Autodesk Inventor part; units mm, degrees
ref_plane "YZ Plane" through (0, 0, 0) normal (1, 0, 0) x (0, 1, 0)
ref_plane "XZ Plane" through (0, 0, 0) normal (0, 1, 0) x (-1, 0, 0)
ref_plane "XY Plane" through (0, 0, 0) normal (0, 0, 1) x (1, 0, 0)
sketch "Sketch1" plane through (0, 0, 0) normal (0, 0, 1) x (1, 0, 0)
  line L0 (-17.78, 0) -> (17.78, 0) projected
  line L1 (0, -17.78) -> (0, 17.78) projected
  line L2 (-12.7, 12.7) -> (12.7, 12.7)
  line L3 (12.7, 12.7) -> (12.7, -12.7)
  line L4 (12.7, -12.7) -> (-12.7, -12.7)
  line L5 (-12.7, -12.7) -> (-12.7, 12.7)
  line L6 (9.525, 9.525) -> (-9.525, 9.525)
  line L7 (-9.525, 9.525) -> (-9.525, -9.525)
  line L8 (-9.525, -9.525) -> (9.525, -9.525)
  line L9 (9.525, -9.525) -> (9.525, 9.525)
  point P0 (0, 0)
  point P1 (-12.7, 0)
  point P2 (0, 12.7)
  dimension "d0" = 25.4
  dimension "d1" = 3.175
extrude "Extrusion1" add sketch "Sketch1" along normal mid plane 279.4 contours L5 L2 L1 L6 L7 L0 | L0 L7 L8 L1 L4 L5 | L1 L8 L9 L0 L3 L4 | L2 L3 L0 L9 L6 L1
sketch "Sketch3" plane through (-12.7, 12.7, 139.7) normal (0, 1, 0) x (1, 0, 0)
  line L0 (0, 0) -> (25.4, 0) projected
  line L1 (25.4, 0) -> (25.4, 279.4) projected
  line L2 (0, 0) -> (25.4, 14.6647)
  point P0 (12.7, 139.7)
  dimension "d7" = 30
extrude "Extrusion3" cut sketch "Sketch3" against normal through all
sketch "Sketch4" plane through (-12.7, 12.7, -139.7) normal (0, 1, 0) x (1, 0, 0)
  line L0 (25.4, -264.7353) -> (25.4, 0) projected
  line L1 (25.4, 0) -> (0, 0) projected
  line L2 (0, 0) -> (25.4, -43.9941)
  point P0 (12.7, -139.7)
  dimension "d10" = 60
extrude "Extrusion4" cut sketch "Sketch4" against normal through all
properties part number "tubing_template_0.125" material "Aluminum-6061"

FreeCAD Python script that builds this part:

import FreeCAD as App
import Part
import Sketcher
Q = App.Units.Quantity

doc = App.newDocument("Part")
body = doc.addObject("PartDesign::Body", "Body")

sketch1 = doc.addObject("Sketcher::SketchObject", "Sketch")
body.addObject(sketch1)
sketch1.AttachmentSupport = (doc.XY_Plane, [""])
sketch1.MapMode = "FlatFace"
sketch1.addGeometry(Part.LineSegment(App.Vector(-13, 13, 0), App.Vector(-13, -13, 0)), False)
sketch1.addGeometry(Part.LineSegment(App.Vector(-13, -13, 0), App.Vector(13, -13, 0)), False)
sketch1.addGeometry(Part.LineSegment(App.Vector(13, -13, 0), App.Vector(13, 13, 0)), False)
sketch1.addGeometry(Part.LineSegment(App.Vector(13, 13, 0), App.Vector(-13, 13, 0)), False)
sketch1.addGeometry(Part.LineSegment(App.Vector(-10, 10, 0), App.Vector(10, 10, 0)), False)
sketch1.addGeometry(Part.LineSegment(App.Vector(10, 10, 0), App.Vector(10, -10, 0)), False)
sketch1.addGeometry(Part.LineSegment(App.Vector(10, -10, 0), App.Vector(-10, -10, 0)), False)
sketch1.addGeometry(Part.LineSegment(App.Vector(-10, -10, 0), App.Vector(-10, 10, 0)), False)
sketch1.addConstraint(Sketcher.Constraint("Coincident", 0, 2, 1, 1))
sketch1.addConstraint(Sketcher.Constraint("Coincident", 1, 2, 2, 1))
sketch1.addConstraint(Sketcher.Constraint("Coincident", 2, 2, 3, 1))
sketch1.addConstraint(Sketcher.Constraint("Coincident", 3, 2, 0, 1))
sketch1.addConstraint(Sketcher.Constraint("Coincident", 4, 2, 5, 1))
sketch1.addConstraint(Sketcher.Constraint("Coincident", 5, 2, 6, 1))
sketch1.addConstraint(Sketcher.Constraint("Coincident", 6, 2, 7, 1))
sketch1.addConstraint(Sketcher.Constraint("Coincident", 7, 2, 4, 1))
sketch1.addConstraint(Sketcher.Constraint("Vertical", 0))
sketch1.addConstraint(Sketcher.Constraint("Horizontal", 1))
sketch1.addConstraint(Sketcher.Constraint("Vertical", 2))
sketch1.addConstraint(Sketcher.Constraint("Horizontal", 3))
sketch1.addConstraint(Sketcher.Constraint("Horizontal", 4))
sketch1.addConstraint(Sketcher.Constraint("Vertical", 5))
sketch1.addConstraint(Sketcher.Constraint("Horizontal", 6))
sketch1.addConstraint(Sketcher.Constraint("Vertical", 7))
sketch1.addConstraint(Sketcher.Constraint("Symmetric", 0, 2, 2, 2, -1, 1))
sketch1.addConstraint(Sketcher.Constraint("Symmetric", 4, 2, 6, 2, -1, 1))
sketch1.addConstraint(Sketcher.Constraint("Equal", 3, 0))
sketch1.addConstraint(Sketcher.Constraint("Equal", 6, 5))
sketch1.addConstraint(Sketcher.Constraint("DistanceX", 1, 1, 1, 2, Q("1 in")))
sketch1.addConstraint(Sketcher.Constraint("DistanceX", 4, 2, 2, 2, Q("0.125 in")))
pad1 = doc.addObject("PartDesign::Pad", "Pad")
body.addObject(pad1)
pad1.Profile = sketch1
pad1.Length = Q("11 in")
pad1.Midplane = True

sketch2 = doc.addObject("Sketcher::SketchObject", "Sketch001")
body.addObject(sketch2)
sketch2.AttachmentSupport = (doc.XZ_Plane, [""])
sketch2.MapMode = "FlatFace"
sketch2.AttachmentOffset = App.Placement(App.Vector(0, 0, -0.5 * 25.4), App.Rotation())
sketch2.addGeometry(Part.LineSegment(App.Vector(13, 125, 0), App.Vector(-13, 140, 0)), False)
sketch2.addGeometry(Part.LineSegment(App.Vector(-13, 140, 0), App.Vector(13, 140, 0)), False)
sketch2.addGeometry(Part.LineSegment(App.Vector(13, 140, 0), App.Vector(13, 125, 0)), False)
sketch2.addConstraint(Sketcher.Constraint("Coincident", 0, 2, 1, 1))
sketch2.addConstraint(Sketcher.Constraint("Coincident", 1, 2, 2, 1))
sketch2.addConstraint(Sketcher.Constraint("Coincident", 2, 2, 0, 1))
sketch2.addConstraint(Sketcher.Constraint("Horizontal", 1))
sketch2.addConstraint(Sketcher.Constraint("Vertical", 2))
sketch2.addConstraint(Sketcher.Constraint("DistanceX", 1, 1, 1, 2, Q("1 in")))
sketch2.addConstraint(Sketcher.Constraint("Angle", 0, Q("150 deg")))
sketch2.addConstraint(Sketcher.Constraint("DistanceX", 0, 2, -1, 1, Q("0.5 in")))
sketch2.addConstraint(Sketcher.Constraint("DistanceY", -1, 1, 0, 2, Q("5.5 in")))
pocket1 = doc.addObject("PartDesign::Pocket", "Pocket")
body.addObject(pocket1)
pocket1.Profile = sketch2
pocket1.Type = "ThroughAll"
pocket1.Reversed = True

sketch3 = doc.addObject("Sketcher::SketchObject", "Sketch002")
body.addObject(sketch3)
sketch3.AttachmentSupport = (doc.XZ_Plane, [""])
sketch3.MapMode = "FlatFace"
sketch3.AttachmentOffset = App.Placement(App.Vector(0, 0, -0.5 * 25.4), App.Rotation())
sketch3.addGeometry(Part.LineSegment(App.Vector(-13, -140, 0), App.Vector(13, -96, 0)), False)
sketch3.addGeometry(Part.LineSegment(App.Vector(13, -96, 0), App.Vector(13, -140, 0)), False)
sketch3.addGeometry(Part.LineSegment(App.Vector(13, -140, 0), App.Vector(-13, -140, 0)), False)
sketch3.addConstraint(Sketcher.Constraint("Coincident", 0, 2, 1, 1))
sketch3.addConstraint(Sketcher.Constraint("Coincident", 1, 2, 2, 1))
sketch3.addConstraint(Sketcher.Constraint("Coincident", 2, 2, 0, 1))
sketch3.addConstraint(Sketcher.Constraint("Vertical", 1))
sketch3.addConstraint(Sketcher.Constraint("Horizontal", 2))
sketch3.addConstraint(Sketcher.Constraint("Angle", 0, Q("60 deg")))
sketch3.addConstraint(Sketcher.Constraint("DistanceX", 2, 2, 2, 1, Q("1 in")))
sketch3.addConstraint(Sketcher.Constraint("DistanceX", -1, 1, 0, 2, Q("0.5 in")))
sketch3.addConstraint(Sketcher.Constraint("DistanceY", 1, 2, -1, 1, Q("5.5 in")))
pocket2 = doc.addObject("PartDesign::Pocket", "Pocket001")
body.addObject(pocket2)
pocket2.Profile = sketch3
pocket2.Type = "ThroughAll"
pocket2.Reversed = True

doc.recompute()
